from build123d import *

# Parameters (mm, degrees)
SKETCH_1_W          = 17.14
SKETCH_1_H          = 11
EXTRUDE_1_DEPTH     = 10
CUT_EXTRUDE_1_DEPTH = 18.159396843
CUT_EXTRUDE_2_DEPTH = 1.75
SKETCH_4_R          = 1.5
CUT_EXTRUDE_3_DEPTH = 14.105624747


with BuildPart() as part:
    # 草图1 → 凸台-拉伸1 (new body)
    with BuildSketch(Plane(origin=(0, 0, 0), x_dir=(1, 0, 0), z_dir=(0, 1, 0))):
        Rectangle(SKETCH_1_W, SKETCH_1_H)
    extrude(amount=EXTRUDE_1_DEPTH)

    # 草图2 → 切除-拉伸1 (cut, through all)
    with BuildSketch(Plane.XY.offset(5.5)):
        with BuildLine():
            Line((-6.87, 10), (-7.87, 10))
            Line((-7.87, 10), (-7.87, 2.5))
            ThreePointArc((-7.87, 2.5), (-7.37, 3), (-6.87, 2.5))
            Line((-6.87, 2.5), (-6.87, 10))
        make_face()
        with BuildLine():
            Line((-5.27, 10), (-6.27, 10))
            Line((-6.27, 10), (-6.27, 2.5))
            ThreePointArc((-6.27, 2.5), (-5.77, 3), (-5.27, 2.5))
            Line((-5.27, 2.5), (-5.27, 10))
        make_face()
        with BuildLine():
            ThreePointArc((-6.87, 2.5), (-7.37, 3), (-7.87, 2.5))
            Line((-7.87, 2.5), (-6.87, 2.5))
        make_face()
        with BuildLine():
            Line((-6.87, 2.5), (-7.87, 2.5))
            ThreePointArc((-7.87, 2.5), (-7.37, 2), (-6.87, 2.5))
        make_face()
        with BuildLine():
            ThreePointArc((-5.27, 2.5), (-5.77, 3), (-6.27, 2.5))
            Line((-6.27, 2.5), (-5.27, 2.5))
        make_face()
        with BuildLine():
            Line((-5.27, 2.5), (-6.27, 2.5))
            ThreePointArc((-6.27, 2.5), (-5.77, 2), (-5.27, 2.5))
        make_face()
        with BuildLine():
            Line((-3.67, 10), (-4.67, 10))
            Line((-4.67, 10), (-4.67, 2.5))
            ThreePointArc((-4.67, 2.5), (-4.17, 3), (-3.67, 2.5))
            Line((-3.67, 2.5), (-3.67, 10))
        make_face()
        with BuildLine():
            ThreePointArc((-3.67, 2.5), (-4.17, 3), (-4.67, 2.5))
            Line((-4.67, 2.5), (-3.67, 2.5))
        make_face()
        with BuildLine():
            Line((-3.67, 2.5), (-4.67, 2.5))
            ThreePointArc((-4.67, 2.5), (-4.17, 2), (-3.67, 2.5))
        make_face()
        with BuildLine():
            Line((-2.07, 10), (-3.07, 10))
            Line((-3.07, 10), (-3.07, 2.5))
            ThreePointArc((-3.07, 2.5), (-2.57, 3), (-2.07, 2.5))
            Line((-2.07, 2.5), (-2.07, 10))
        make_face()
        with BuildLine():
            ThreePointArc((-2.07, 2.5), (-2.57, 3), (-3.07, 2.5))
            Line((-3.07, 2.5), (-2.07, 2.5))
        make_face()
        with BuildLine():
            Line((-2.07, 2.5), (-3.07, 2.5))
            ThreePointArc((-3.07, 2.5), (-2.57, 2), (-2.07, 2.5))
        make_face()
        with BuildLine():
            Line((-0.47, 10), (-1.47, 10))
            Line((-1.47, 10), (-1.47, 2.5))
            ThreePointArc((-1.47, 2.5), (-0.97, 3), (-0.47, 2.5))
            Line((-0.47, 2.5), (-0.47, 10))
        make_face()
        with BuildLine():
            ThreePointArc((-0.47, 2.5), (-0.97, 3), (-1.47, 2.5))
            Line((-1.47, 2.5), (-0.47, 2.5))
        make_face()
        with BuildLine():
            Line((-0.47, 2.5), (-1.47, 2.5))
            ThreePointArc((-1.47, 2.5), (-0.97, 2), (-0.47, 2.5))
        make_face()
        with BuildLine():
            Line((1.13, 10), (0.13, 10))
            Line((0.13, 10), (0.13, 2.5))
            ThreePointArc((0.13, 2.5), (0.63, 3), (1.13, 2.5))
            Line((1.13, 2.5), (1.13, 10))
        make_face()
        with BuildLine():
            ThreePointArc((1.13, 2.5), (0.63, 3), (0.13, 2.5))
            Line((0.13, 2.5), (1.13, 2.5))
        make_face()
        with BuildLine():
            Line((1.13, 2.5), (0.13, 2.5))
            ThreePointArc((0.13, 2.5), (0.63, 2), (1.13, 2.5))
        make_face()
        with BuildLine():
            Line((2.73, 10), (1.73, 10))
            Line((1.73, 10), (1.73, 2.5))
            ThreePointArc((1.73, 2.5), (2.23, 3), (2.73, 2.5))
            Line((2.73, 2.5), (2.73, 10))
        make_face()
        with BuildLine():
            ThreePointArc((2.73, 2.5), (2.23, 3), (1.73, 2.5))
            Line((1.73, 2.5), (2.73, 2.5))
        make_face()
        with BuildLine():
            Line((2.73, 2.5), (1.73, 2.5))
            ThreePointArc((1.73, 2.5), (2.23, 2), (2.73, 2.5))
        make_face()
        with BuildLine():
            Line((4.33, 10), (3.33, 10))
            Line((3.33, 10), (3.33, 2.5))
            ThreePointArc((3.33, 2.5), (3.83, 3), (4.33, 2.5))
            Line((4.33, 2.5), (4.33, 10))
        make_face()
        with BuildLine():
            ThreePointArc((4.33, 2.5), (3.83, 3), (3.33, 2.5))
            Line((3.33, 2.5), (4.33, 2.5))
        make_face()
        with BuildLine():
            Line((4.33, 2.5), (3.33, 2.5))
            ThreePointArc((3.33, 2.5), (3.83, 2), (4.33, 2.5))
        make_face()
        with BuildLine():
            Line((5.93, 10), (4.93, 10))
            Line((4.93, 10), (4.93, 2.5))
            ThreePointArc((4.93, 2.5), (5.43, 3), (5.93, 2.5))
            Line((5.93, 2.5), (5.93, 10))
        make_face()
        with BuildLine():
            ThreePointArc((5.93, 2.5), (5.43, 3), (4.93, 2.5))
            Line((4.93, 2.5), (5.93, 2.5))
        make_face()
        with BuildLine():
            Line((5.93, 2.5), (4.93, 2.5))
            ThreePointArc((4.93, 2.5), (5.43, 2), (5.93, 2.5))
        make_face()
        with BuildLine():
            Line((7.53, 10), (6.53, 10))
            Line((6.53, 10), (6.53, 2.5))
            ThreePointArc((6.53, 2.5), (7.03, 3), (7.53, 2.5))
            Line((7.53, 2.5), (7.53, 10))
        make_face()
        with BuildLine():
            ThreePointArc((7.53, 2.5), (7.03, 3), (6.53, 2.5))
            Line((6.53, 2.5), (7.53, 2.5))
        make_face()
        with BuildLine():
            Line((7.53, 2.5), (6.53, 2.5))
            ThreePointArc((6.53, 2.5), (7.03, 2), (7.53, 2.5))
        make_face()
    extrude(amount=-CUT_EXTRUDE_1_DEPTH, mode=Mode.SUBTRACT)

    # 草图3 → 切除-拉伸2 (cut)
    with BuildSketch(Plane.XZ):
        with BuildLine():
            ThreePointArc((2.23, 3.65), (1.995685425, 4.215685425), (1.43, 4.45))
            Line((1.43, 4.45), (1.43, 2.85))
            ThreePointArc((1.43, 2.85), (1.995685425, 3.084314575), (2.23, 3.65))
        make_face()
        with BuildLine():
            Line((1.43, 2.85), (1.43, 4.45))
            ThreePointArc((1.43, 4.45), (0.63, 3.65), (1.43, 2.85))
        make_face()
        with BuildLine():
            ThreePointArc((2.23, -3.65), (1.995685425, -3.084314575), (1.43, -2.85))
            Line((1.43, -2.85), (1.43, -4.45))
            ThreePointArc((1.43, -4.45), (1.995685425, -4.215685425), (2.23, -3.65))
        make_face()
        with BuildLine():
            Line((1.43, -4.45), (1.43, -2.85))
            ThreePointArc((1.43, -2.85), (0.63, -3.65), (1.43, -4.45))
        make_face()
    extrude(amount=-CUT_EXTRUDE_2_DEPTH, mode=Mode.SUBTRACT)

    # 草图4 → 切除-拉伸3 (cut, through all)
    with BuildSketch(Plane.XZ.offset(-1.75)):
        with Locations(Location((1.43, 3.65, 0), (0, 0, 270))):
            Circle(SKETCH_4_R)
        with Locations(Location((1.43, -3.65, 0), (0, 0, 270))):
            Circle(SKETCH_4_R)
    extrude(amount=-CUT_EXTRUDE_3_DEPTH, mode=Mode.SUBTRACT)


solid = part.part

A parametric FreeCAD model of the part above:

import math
import FreeCAD as App
import Part
import Sketcher

V = App.Vector

doc = App.newDocument("Part")
body = doc.addObject("PartDesign::Body", "Body")

# Sketch on XZ plane
sketch1 = body.newObject("Sketcher::SketchObject", "Sketch")
sketch1.AttachmentSupport = (doc.getObject("XZ_Plane"), [""])
sketch1.MapMode = "FlatFace"
sketch1.addGeometry([
    Part.LineSegment(V(-9, -6, 0), V(-9, 6, 0)),
    Part.LineSegment(V(-9, 6, 0), V(9, 6, 0)),
    Part.LineSegment(V(9, 6, 0), V(9, -6, 0)),
    Part.LineSegment(V(9, -6, 0), V(-9, -6, 0)),
], False)
sketch1.addConstraint([
    Sketcher.Constraint("Coincident", 0, 2, 1, 1),
    Sketcher.Constraint("Coincident", 1, 2, 2, 1),
    Sketcher.Constraint("Coincident", 2, 2, 3, 1),
    Sketcher.Constraint("Coincident", 3, 2, 0, 1),
    Sketcher.Constraint("Vertical", 0),
    Sketcher.Constraint("Horizontal", 1),
    Sketcher.Constraint("Vertical", 2),
    Sketcher.Constraint("Horizontal", 3),
    Sketcher.Constraint("Symmetric", 0, 2, 2, 2, -1, 1),
    Sketcher.Constraint("DistanceY", 0, 1, 0, 2, 11.0),
    Sketcher.Constraint("DistanceX", 1, 1, 1, 2, 17.14),
])
pad1 = body.newObject("PartDesign::Pad", "Pad")
pad1.Profile = sketch1
pad1.Length = 10
pad1.Reversed = True

# Sketch on XY plane
sketch2 = body.newObject("Sketcher::SketchObject", "Sketch001")
sketch2.AttachmentSupport = (doc.getObject("XY_Plane"), [""])
sketch2.MapMode = "FlatFace"
sketch2.AttachmentOffset = App.Placement(V(0, 0, 5.5), App.Rotation())
sketch2.addGeometry([
    Part.LineSegment(V(-7.9, 10, 0), V(-7.9, 2.5, 0)),  # 0
    Part.ArcOfCircle(Part.Circle(V(-7.4, 2.5, 0), V(0, 0, 1), 0.5), math.radians(180), math.radians(360)),  # 1
    Part.LineSegment(V(-6.9, 2.5, 0), V(-6.9, 10, 0)),  # 2
    Part.LineSegment(V(-6.9, 10, 0), V(-7.9, 10, 0)),  # 3
    Part.LineSegment(V(-6.3, 10, 0), V(-6.3, 2.5, 0)),  # 4
    Part.ArcOfCircle(Part.Circle(V(-5.8, 2.5, 0), V(0, 0, 1), 0.5), math.radians(180), math.radians(360)),  # 5
    Part.LineSegment(V(-5.3, 2.5, 0), V(-5.3, 10, 0)),  # 6
    Part.LineSegment(V(-5.3, 10, 0), V(-6.3, 10, 0)),  # 7
    Part.LineSegment(V(-4.7, 10, 0), V(-4.7, 2.5, 0)),  # 8
    Part.ArcOfCircle(Part.Circle(V(-4.2, 2.5, 0), V(0, 0, 1), 0.5), math.radians(180), math.radians(360)),  # 9
    Part.LineSegment(V(-3.7, 2.5, 0), V(-3.7, 10, 0)),  # 10
    Part.LineSegment(V(-3.7, 10, 0), V(-4.7, 10, 0)),  # 11
    Part.LineSegment(V(-3.1, 10, 0), V(-3.1, 2.5, 0)),  # 12
    Part.ArcOfCircle(Part.Circle(V(-2.6, 2.5, 0), V(0, 0, 1), 0.5), math.radians(180), math.radians(360)),  # 13
    Part.LineSegment(V(-2.1, 2.5, 0), V(-2.1, 10, 0)),  # 14
    Part.LineSegment(V(-2.1, 10, 0), V(-3.1, 10, 0)),  # 15
    Part.LineSegment(V(-1.5, 10, 0), V(-1.5, 2.5, 0)),  # 16
    Part.ArcOfCircle(Part.Circle(V(-1, 2.5, 0), V(0, 0, 1), 0.5), math.radians(180), math.radians(360)),  # 17
    Part.LineSegment(V(-0.5, 2.5, 0), V(-0.5, 10, 0)),  # 18
    Part.LineSegment(V(-0.5, 10, 0), V(-1.5, 10, 0)),  # 19
    Part.LineSegment(V(0.1, 10, 0), V(0.1, 2.5, 0)),  # 20
    Part.ArcOfCircle(Part.Circle(V(0.6, 2.5, 0), V(0, 0, 1), 0.5), math.radians(180), math.radians(360)),  # 21
    Part.LineSegment(V(1.1, 2.5, 0), V(1.1, 10, 0)),  # 22
    Part.LineSegment(V(1.1, 10, 0), V(0.1, 10, 0)),  # 23
    Part.LineSegment(V(1.7, 10, 0), V(1.7, 2.5, 0)),  # 24
    Part.ArcOfCircle(Part.Circle(V(2.2, 2.5, 0), V(0, 0, 1), 0.5), math.radians(180), math.radians(360)),  # 25
    Part.LineSegment(V(2.7, 2.5, 0), V(2.7, 10, 0)),  # 26
    Part.LineSegment(V(2.7, 10, 0), V(1.7, 10, 0)),  # 27
    Part.LineSegment(V(3.3, 10, 0), V(3.3, 2.5, 0)),  # 28
    Part.ArcOfCircle(Part.Circle(V(3.8, 2.5, 0), V(0, 0, 1), 0.5), math.radians(180), math.radians(360)),  # 29
    Part.LineSegment(V(4.3, 2.5, 0), V(4.3, 10, 0)),  # 30
    Part.LineSegment(V(4.3, 10, 0), V(3.3, 10, 0)),  # 31
    Part.LineSegment(V(4.9, 10, 0), V(4.9, 2.5, 0)),  # 32
    Part.ArcOfCircle(Part.Circle(V(5.4, 2.5, 0), V(0, 0, 1), 0.5), math.radians(180), math.radians(360)),  # 33
    Part.LineSegment(V(5.9, 2.5, 0), V(5.9, 10, 0)),  # 34
    Part.LineSegment(V(5.9, 10, 0), V(4.9, 10, 0)),  # 35
    Part.LineSegment(V(6.5, 10, 0), V(6.5, 2.5, 0)),  # 36
    Part.ArcOfCircle(Part.Circle(V(7, 2.5, 0), V(0, 0, 1), 0.5), math.radians(180), math.radians(360)),  # 37
    Part.LineSegment(V(7.5, 2.5, 0), V(7.5, 10, 0)),  # 38
    Part.LineSegment(V(7.5, 10, 0), V(6.5, 10, 0)),  # 39
], False)
sketch2.addConstraint([
    Sketcher.Constraint("Tangent", 0, 2, 1, 1),
    Sketcher.Constraint("Tangent", 1, 2, 2, 1),
    Sketcher.Constraint("Coincident", 2, 2, 3, 1),
    Sketcher.Constraint("Coincident", 3, 2, 0, 1),
    Sketcher.Constraint("Tangent", 4, 2, 5, 1),
    Sketcher.Constraint("Tangent", 5, 2, 6, 1),
    Sketcher.Constraint("Coincident", 6, 2, 7, 1),
    Sketcher.Constraint("Coincident", 7, 2, 4, 1),
    Sketcher.Constraint("Tangent", 8, 2, 9, 1),
    Sketcher.Constraint("Tangent", 9, 2, 10, 1),
    Sketcher.Constraint("Coincident", 10, 2, 11, 1),
    Sketcher.Constraint("Coincident", 11, 2, 8, 1),
    Sketcher.Constraint("Tangent", 12, 2, 13, 1),
    Sketcher.Constraint("Tangent", 13, 2, 14, 1),
    Sketcher.Constraint("Coincident", 14, 2, 15, 1),
    Sketcher.Constraint("Coincident", 15, 2, 12, 1),
    Sketcher.Constraint("Tangent", 16, 2, 17, 1),
    Sketcher.Constraint("Tangent", 17, 2, 18, 1),
    Sketcher.Constraint("Coincident", 18, 2, 19, 1),
    Sketcher.Constraint("Coincident", 19, 2, 16, 1),
    Sketcher.Constraint("Tangent", 20, 2, 21, 1),
    Sketcher.Constraint("Tangent", 21, 2, 22, 1),
    Sketcher.Constraint("Coincident", 22, 2, 23, 1),
    Sketcher.Constraint("Coincident", 23, 2, 20, 1),
    Sketcher.Constraint("Tangent", 24, 2, 25, 1),
    Sketcher.Constraint("Tangent", 25, 2, 26, 1),
    Sketcher.Constraint("Coincident", 26, 2, 27, 1),
    Sketcher.Constraint("Coincident", 27, 2, 24, 1),
    Sketcher.Constraint("Tangent", 28, 2, 29, 1),
    Sketcher.Constraint("Tangent", 29, 2, 30, 1),
    Sketcher.Constraint("Coincident", 30, 2, 31, 1),
    Sketcher.Constraint("Coincident", 31, 2, 28, 1),
    Sketcher.Constraint("Tangent", 32, 2, 33, 1),
    Sketcher.Constraint("Tangent", 33, 2, 34, 1),
    Sketcher.Constraint("Coincident", 34, 2, 35, 1),
    Sketcher.Constraint("Coincident", 35, 2, 32, 1),
    Sketcher.Constraint("Tangent", 36, 2, 37, 1),
    Sketcher.Constraint("Tangent", 37, 2, 38, 1),
    Sketcher.Constraint("Coincident", 38, 2, 39, 1),
    Sketcher.Constraint("Coincident", 39, 2, 36, 1),
    Sketcher.Constraint("Vertical", 0),
    Sketcher.Constraint("Vertical", 2),
    Sketcher.Constraint("Horizontal", 3),
    Sketcher.Constraint("Vertical", 4),
    Sketcher.Constraint("Vertical", 6),
    Sketcher.Constraint("Horizontal", 7),
    Sketcher.Constraint("Vertical", 8),
    Sketcher.Constraint("Vertical", 10),
    Sketcher.Constraint("Horizontal", 11),
    Sketcher.Constraint("Vertical", 12),
    Sketcher.Constraint("Vertical", 14),
    Sketcher.Constraint("Horizontal", 15),
    Sketcher.Constraint("Vertical", 16),
    Sketcher.Constraint("Vertical", 18),
    Sketcher.Constraint("Horizontal", 19),
    Sketcher.Constraint("Vertical", 20),
    Sketcher.Constraint("Vertical", 22),
    Sketcher.Constraint("Horizontal", 23),
    Sketcher.Constraint("Vertical", 24),
    Sketcher.Constraint("Vertical", 26),
    Sketcher.Constraint("Horizontal", 27),
    Sketcher.Constraint("Vertical", 28),
    Sketcher.Constraint("Vertical", 30),
    Sketcher.Constraint("Horizontal", 31),
    Sketcher.Constraint("Vertical", 32),
    Sketcher.Constraint("Vertical", 34),
    Sketcher.Constraint("Horizontal", 35),
    Sketcher.Constraint("Vertical", 36),
    Sketcher.Constraint("Vertical", 38),
    Sketcher.Constraint("Horizontal", 39),
    Sketcher.Constraint("Equal", 1, 5),
    Sketcher.Constraint("Equal", 5, 9),
    Sketcher.Constraint("Equal", 9, 13),
    Sketcher.Constraint("Equal", 13, 17),
    Sketcher.Constraint("Equal", 17, 21),
    Sketcher.Constraint("Equal", 21, 25),
    Sketcher.Constraint("Equal", 25, 29),
    Sketcher.Constraint("Equal", 29, 33),
    Sketcher.Constraint("Equal", 33, 37),
    Sketcher.Constraint("Horizontal", 1, 3, 5, 3),
    Sketcher.Constraint("Horizontal", 5, 3, 9, 3),
    Sketcher.Constraint("Horizontal", 9, 3, 13, 3),
    Sketcher.Constraint("Horizontal", 13, 3, 17, 3),
    Sketcher.Constraint("Horizontal", 17, 3, 21, 3),
    Sketcher.Constraint("Horizontal", 21, 3, 25, 3),
    Sketcher.Constraint("Horizontal", 25, 3, 29, 3),
    Sketcher.Constraint("Horizontal", 29, 3, 33, 3),
    Sketcher.Constraint("Horizontal", 33, 3, 37, 3),
    Sketcher.Constraint("Horizontal", 3, 2, 6, 2),
    Sketcher.Constraint("Horizontal", 7, 2, 10, 2),
    Sketcher.Constraint("Horizontal", 11, 2, 14, 2),
    Sketcher.Constraint("Horizontal", 15, 2, 18, 2),
    Sketcher.Constraint("Horizontal", 19, 2, 22, 2),
    Sketcher.Constraint("Horizontal", 23, 2, 26, 2),
    Sketcher.Constraint("Horizontal", 27, 2, 30, 2),
    Sketcher.Constraint("Horizontal", 31, 2, 34, 2),
    Sketcher.Constraint("Horizontal", 35, 2, 38, 2),
    Sketcher.Constraint("Radius", 1, 0.5),
    Sketcher.Constraint("DistanceY", 0, 2, 0, 1, 7.5),
    Sketcher.Constraint("DistanceY", -1, 1, 2, 2, 10.0),
    Sketcher.Constraint("DistanceX", 1, 3, 21, 3, 8.0),
    Sketcher.Constraint("DistanceX", 5, 3, 25, 3, 8.0),
    Sketcher.Constraint("DistanceX", 9, 3, 29, 3, 8.0),
    Sketcher.Constraint("DistanceX", 13, 3, 33, 3, 8.0),
    Sketcher.Constraint("DistanceX", 17, 3, 37, 3, 8.0),
    Sketcher.Constraint("DistanceX", 1, 3, 5, 3, 1.6),
    Sketcher.Constraint("DistanceX", 5, 3, 9, 3, 1.6),
    Sketcher.Constraint("DistanceX", 9, 3, 13, 3, 1.6),
    Sketcher.Constraint("DistanceX", 13, 3, 17, 3, 1.6),
    Sketcher.Constraint("DistanceX", 1, 3, -1, 1, 7.37),
])
pocket1 = body.newObject("PartDesign::Pocket", "Pocket")
pocket1.Profile = sketch2
pocket1.Type = "ThroughAll"

# Sketch on XZ plane
sketch3 = body.newObject("Sketcher::SketchObject", "Sketch002")
sketch3.AttachmentSupport = (doc.getObject("XZ_Plane"), [""])
sketch3.MapMode = "FlatFace"
sketch3.addGeometry([
    Part.ArcOfCircle(Part.Circle(V(1.4, 3.6, 0), V(0, 0, 1), 0.8), math.radians(0), math.radians(90)),  # 0
    Part.ArcOfCircle(Part.Circle(V(1.4, 3.6, 0), V(0, 0, 1), 0.8), math.radians(90), math.radians(270)),  # 1
    Part.ArcOfCircle(Part.Circle(V(1.4, 3.6, 0), V(0, 0, 1), 0.8), math.radians(-90), math.radians(0)),  # 2
    Part.ArcOfCircle(Part.Circle(V(1.4, -3.6, 0), V(0, 0, 1), 0.8), math.radians(0), math.radians(90)),  # 3
    Part.ArcOfCircle(Part.Circle(V(1.4, -3.6, 0), V(0, 0, 1), 0.8), math.radians(90), math.radians(270)),  # 4
    Part.ArcOfCircle(Part.Circle(V(1.4, -3.6, 0), V(0, 0, 1), 0.8), math.radians(-90), math.radians(0)),  # 5
], False)
sketch3.addConstraint([
    Sketcher.Constraint("Tangent", 0, 2, 1, 1),
    Sketcher.Constraint("Tangent", 1, 2, 2, 1),
    Sketcher.Constraint("Tangent", 2, 2, 0, 1),
    Sketcher.Constraint("Tangent", 3, 2, 4, 1),
    Sketcher.Constraint("Tangent", 4, 2, 5, 1),
    Sketcher.Constraint("Tangent", 5, 2, 3, 1),
    Sketcher.Constraint("Equal", 2, 3),
    Sketcher.Constraint("Symmetric", 0, 3, 3, 3, -1),
    Sketcher.Constraint("Horizontal", 1, 3, 2, 2),
    Sketcher.Constraint("Horizontal", 4, 3, 5, 2),
    Sketcher.Constraint("Vertical", 5, 3, 0, 2),
    Sketcher.Constraint("Vertical", 0, 2, 1, 2),
    Sketcher.Constraint("Vertical", 1, 2, 3, 2),
    Sketcher.Constraint("Vertical", 3, 2, 4, 2),
    Sketcher.Constraint("Radius", 0, 0.8),
    Sketcher.Constraint("DistanceY", 3, 3, 0, 3, 7.3),
    Sketcher.Constraint("DistanceX", -1, 1, 0, 3, 1.43),
])
pocket2 = body.newObject("PartDesign::Pocket", "Pocket001")
pocket2.Profile = sketch3
pocket2.Length = 1.75

# Sketch on XZ plane
sketch4 = body.newObject("Sketcher::SketchObject", "Sketch003")
sketch4.AttachmentSupport = (doc.getObject("XZ_Plane"), [""])
sketch4.MapMode = "FlatFace"
sketch4.AttachmentOffset = App.Placement(V(0, 0, -1.75), App.Rotation())
sketch4.addGeometry([
    Part.Circle(V(1.4, 3.6, 0), V(0, 0, 1), 1.5),
    Part.Circle(V(1.4, -3.6, 0), V(0, 0, 1), 1.5),
], False)
sketch4.addConstraint([
    Sketcher.Constraint("Equal", 0, 1),
    Sketcher.Constraint("Symmetric", 0, 3, 1, 3, -1),
    Sketcher.Constraint("Diameter", 0, 3.0),
    Sketcher.Constraint("DistanceY", 1, 3, 0, 3, 7.3),
    Sketcher.Constraint("DistanceX", -1, 1, 0, 3, 1.43),
])
pocket3 = body.newObject("PartDesign::Pocket", "Pocket002")
pocket3.Profile = sketch4
pocket3.Type = "ThroughAll"

doc.recompute()
